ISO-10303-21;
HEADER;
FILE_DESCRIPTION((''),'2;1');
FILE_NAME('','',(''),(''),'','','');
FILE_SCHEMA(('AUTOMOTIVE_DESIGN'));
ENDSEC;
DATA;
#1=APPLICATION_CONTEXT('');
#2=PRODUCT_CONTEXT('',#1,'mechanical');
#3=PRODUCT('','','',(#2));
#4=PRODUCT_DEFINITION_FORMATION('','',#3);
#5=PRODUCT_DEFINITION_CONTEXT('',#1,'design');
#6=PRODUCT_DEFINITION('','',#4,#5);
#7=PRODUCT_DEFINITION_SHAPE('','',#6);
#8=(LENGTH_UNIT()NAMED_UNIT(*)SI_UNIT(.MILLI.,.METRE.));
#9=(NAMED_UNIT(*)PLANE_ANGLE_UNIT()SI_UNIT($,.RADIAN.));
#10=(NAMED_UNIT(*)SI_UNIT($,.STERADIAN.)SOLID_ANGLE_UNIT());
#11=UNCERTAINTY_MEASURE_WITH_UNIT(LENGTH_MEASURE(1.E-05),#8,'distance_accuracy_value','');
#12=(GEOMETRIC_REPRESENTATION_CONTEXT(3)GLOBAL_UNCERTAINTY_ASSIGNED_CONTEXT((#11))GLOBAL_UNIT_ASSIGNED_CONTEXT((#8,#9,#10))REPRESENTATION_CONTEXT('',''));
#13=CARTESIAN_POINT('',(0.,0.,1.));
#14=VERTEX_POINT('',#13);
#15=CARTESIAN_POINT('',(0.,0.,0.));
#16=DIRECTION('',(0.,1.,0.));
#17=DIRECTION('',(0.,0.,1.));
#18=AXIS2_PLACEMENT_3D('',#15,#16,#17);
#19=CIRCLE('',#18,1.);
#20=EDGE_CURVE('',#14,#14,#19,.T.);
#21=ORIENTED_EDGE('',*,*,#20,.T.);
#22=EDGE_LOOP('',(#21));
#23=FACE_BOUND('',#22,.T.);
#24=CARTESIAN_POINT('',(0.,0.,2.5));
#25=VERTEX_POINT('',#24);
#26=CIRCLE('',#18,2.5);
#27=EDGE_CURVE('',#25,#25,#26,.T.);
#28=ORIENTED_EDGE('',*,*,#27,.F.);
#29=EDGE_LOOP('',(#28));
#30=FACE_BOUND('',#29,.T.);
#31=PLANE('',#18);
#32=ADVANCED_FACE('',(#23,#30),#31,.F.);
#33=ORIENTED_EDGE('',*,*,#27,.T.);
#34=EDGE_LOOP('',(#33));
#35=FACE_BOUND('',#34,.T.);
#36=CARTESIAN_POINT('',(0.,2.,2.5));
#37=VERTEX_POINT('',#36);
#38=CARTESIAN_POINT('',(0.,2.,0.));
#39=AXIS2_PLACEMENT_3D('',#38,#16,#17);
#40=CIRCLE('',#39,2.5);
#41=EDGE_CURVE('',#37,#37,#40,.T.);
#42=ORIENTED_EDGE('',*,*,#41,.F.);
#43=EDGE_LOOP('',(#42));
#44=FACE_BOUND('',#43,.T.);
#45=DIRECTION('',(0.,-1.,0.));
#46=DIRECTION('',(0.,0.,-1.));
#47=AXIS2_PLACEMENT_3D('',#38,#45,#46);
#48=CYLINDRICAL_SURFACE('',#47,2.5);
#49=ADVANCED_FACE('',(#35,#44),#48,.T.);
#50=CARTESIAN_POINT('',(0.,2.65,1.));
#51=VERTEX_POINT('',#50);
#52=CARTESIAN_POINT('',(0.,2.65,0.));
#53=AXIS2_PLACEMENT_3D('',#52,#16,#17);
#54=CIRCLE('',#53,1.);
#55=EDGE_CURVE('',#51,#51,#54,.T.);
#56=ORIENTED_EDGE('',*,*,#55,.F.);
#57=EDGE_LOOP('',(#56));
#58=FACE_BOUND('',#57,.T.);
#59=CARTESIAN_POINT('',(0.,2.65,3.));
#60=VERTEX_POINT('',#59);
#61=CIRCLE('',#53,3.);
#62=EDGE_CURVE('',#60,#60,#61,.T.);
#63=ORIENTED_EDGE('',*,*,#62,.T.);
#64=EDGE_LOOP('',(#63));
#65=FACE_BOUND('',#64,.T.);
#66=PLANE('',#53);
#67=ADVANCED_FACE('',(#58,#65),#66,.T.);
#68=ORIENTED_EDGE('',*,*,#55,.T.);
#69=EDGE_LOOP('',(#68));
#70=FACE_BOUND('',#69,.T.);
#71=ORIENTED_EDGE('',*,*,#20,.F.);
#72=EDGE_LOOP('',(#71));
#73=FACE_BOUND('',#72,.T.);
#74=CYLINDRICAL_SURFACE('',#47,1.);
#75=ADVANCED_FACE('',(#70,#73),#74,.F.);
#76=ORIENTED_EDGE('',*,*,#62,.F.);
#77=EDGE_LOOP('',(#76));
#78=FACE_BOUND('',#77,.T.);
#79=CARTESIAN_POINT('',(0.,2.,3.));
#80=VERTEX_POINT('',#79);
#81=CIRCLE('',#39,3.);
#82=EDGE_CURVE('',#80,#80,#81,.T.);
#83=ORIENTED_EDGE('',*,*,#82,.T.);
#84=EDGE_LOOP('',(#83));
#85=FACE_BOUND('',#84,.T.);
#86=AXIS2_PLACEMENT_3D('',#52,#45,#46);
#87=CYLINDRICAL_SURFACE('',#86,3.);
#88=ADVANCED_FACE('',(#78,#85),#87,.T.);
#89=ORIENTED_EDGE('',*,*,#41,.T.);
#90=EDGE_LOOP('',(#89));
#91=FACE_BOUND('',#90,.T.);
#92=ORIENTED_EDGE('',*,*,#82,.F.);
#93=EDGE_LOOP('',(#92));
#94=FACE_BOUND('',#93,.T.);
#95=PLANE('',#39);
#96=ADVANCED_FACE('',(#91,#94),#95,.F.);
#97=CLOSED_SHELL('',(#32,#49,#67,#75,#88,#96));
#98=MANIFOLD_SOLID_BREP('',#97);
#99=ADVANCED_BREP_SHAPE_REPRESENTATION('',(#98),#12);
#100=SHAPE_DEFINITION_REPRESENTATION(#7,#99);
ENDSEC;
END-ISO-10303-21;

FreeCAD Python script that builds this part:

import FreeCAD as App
import Part
import Sketcher

V = App.Vector
Q = App.Units.Quantity

doc = App.newDocument("Part")
body = doc.addObject("PartDesign::Body", "Body")

# Sketch on XZ plane
sketch1 = doc.addObject("Sketcher::SketchObject", "Sketch")
body.addObject(sketch1)
sketch1.AttachmentSupport = (doc.XZ_Plane, [""])
sketch1.MapMode = "FlatFace"
sketch1.addGeometry([
    Part.Circle(V(0, 0, 0), V(0, 0, 1), 2.5),
    Part.Circle(V(0, 0, 0), V(0, 0, 1), 1),
], False)
sketch1.addConstraint([
    Sketcher.Constraint("Coincident", 0, 3, -1, 1),
    Sketcher.Constraint("Coincident", 1, 3, -1, 1),
    Sketcher.Constraint("Diameter", 0, Q("5 mm")),
    Sketcher.Constraint("Diameter", 1, Q("2 mm")),
])
pad1 = doc.addObject("PartDesign::Pad", "Pad")
body.addObject(pad1)
pad1.Profile = sketch1
pad1.Length = 2
pad1.Reversed = True

# Sketch on XZ plane
sketch2 = doc.addObject("Sketcher::SketchObject", "Sketch001")
body.addObject(sketch2)
sketch2.AttachmentSupport = (doc.XZ_Plane, [""])
sketch2.MapMode = "FlatFace"
sketch2.AttachmentOffset = App.Placement(V(0, 0, -2), App.Rotation())
sketch2.addGeometry([
    Part.Circle(V(0, 0, 0), V(0, 0, 1), 3),
    Part.Circle(V(0, 0, 0), V(0, 0, 1), 1),
], False)
sketch2.addConstraint([
    Sketcher.Constraint("Coincident", 0, 3, -1, 1),
    Sketcher.Constraint("Coincident", 1, 3, -1, 1),
    Sketcher.Constraint("Diameter", 0, Q("6 mm")),
    Sketcher.Constraint("Diameter", 1, Q("2 mm")),
])
pad2 = doc.addObject("PartDesign::Pad", "Pad001")
body.addObject(pad2)
pad2.Profile = sketch2
pad2.Length = 0.65
pad2.Reversed = True

doc.recompute()
